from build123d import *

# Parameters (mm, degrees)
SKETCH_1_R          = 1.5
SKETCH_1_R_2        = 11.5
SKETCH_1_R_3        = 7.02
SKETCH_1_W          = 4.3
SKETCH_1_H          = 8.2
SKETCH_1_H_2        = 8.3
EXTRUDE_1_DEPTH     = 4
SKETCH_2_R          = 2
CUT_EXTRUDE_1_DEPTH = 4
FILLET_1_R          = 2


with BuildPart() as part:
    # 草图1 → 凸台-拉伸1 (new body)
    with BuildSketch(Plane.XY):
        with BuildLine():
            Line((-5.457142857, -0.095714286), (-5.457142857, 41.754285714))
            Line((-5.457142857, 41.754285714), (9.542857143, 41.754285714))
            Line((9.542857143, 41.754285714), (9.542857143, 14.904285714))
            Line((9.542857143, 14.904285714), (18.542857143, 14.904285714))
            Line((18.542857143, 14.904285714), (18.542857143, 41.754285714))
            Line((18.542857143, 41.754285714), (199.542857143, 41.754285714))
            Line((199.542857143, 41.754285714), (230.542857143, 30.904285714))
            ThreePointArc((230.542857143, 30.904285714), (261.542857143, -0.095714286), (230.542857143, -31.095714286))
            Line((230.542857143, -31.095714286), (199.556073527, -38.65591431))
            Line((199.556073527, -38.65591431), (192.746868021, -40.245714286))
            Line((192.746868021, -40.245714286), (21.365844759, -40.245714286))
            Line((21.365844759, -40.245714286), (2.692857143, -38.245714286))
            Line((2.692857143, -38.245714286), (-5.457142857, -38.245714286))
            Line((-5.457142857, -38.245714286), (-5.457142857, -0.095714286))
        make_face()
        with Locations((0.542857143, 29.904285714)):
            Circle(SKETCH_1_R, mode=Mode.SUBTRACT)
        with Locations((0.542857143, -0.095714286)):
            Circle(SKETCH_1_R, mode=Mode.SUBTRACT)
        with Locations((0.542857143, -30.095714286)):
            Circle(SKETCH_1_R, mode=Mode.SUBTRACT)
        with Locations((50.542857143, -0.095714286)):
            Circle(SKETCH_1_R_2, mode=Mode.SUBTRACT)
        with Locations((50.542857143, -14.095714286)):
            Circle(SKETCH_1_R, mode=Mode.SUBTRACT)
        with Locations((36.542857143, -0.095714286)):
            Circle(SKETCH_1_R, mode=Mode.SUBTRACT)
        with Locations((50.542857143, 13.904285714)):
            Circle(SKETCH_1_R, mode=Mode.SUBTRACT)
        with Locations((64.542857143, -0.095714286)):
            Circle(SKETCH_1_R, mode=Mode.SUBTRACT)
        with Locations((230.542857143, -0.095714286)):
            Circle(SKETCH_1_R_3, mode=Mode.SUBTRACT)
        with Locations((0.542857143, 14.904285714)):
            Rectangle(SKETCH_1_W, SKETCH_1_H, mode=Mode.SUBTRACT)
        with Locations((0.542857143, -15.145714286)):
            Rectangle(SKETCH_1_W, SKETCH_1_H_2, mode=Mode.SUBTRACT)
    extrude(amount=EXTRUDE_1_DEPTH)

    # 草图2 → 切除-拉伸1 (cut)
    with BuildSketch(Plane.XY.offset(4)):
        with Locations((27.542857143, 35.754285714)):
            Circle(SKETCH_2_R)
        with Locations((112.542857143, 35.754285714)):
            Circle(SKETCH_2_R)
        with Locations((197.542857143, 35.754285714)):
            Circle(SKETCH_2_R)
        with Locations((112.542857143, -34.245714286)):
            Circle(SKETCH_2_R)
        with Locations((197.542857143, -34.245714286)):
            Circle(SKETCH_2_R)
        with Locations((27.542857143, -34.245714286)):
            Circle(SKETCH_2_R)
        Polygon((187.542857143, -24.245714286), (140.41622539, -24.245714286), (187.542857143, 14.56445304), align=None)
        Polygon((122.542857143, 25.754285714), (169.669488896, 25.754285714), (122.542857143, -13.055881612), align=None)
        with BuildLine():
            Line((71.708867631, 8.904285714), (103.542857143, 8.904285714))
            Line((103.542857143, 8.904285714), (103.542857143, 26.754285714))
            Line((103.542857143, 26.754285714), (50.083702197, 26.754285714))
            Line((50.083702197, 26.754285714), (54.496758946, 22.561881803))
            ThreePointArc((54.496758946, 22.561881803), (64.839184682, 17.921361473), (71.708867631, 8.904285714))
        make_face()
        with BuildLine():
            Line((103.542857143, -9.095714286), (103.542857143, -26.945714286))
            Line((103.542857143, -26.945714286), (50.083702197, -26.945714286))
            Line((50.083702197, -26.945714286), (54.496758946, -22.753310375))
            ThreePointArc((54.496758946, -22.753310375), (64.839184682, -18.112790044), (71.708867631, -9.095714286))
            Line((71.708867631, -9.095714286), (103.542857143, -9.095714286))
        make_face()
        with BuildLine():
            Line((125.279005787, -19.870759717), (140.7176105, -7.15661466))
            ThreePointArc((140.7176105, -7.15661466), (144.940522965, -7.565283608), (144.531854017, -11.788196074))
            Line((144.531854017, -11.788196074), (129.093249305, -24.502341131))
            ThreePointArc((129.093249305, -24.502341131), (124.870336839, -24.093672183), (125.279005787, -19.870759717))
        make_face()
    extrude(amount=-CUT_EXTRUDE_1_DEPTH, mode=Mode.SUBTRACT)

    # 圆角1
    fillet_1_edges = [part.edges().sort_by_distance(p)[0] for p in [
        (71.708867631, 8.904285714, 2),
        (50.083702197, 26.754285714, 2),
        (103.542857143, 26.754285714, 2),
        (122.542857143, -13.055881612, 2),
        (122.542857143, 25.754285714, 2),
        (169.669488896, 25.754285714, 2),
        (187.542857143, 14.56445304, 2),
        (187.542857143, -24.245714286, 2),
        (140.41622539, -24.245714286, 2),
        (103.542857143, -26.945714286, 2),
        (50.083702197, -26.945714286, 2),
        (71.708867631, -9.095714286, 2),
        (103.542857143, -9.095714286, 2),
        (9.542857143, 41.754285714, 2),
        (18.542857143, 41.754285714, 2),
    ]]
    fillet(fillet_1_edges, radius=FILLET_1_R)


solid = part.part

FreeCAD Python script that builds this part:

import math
import FreeCAD as App
import Part
import Sketcher
from FreeCAD import Vector
Q = App.Units.Quantity


def edges_at(feature, points):
    """Names of the edges that pass closest to the given points."""
    edges = feature.Shape.Edges
    near = lambda p: min(range(len(edges)), key=lambda i: edges[i].distToShape(Part.Vertex(*p))[0])
    return sorted({f"Edge{near(p) + 1}" for p in points})


def add_polygon(sketch, points):
    """Adds a closed chain of lines whose ends are joined by coincident constraints."""
    first, n = sketch.GeometryCount, len(points)
    for a, b in zip(points, points[1:] + points[:1]):
        sketch.addGeometry(Part.LineSegment(App.Vector(*a, 0), App.Vector(*b, 0)), False)
    for i in range(n):
        sketch.addConstraint(Sketcher.Constraint("Coincident", first + i, 2, first + (i + 1) % n, 1))

doc = App.newDocument("Part")
params = doc.addObject("Spreadsheet::Sheet", "Params")
for row, (alias, value) in enumerate([
    ("sketch1_diameter", "3 mm"),
    ("sketch1_diameter2", "23 mm"),
    ("sketch1_radius", "31 mm"),
    ("sketch1_diameter3", "14.04 mm"),
    ("sketch1_width", "15 mm"),
    ("pad1_length", "4 mm"),
    ("sketch2_diameter", "4 mm"),
    ("sketch2_radius", "23 mm"),
    ("sketch2_radius2", "3 mm"),
    ("sketch2_length", "20 mm"),
    ("sketch2_height", "9 mm"),
    ("pocket1_length", "4 mm"),
    ("fillet_radius", "2 mm"),
], start=1):
    params.set(f"A{row}", alias)
    params.set(f"B{row}", "=" + value)
    params.setAlias(f"B{row}", alias)

body = doc.addObject("PartDesign::Body", "Body")

sketch1 = body.newObject("Sketcher::SketchObject", "Sketch")
sketch1.AttachmentSupport = (doc.getObject("XY_Plane"), [""])
sketch1.MapMode = "FlatFace"
sketch1.addGeometry(Part.LineSegment(Vector(9.5, 41.8, 0), Vector(-5.5, 41.8, 0)), False)
sketch1.addGeometry(Part.LineSegment(Vector(-5.5, 41.8, 0), Vector(-5.5, -38.2, 0)), False)
sketch1.addGeometry(Part.LineSegment(Vector(-5.5, -38.2, 0), Vector(2.7, -38.2, 0)), False)
sketch1.addGeometry(Part.LineSegment(Vector(2.7, -38.2, 0), Vector(21.4, -40.2, 0)), False)
sketch1.addGeometry(Part.LineSegment(Vector(21.4, -40.2, 0), Vector(192.7, -40.2, 0)), False)
sketch1.addGeometry(Part.LineSegment(Vector(192.7, -40.2, 0), Vector(199.6, -38.7, 0)), False)
sketch1.addGeometry(Part.LineSegment(Vector(199.6, -38.7, 0), Vector(230.5, -31.1, 0)), False)
sketch1.addGeometry(Part.ArcOfCircle(Part.Circle(Vector(230.5, -0.1, 0), Vector(0, 0, 1), 31), math.radians(-90), math.radians(90)), False)
sketch1.addGeometry(Part.LineSegment(Vector(230.5, 30.9, 0), Vector(199.5, 41.8, 0)), False)
sketch1.addGeometry(Part.LineSegment(Vector(199.5, 41.8, 0), Vector(18.5, 41.8, 0)), False)
sketch1.addGeometry(Part.LineSegment(Vector(18.5, 41.8, 0), Vector(18.5, 14.9, 0)), False)
sketch1.addGeometry(Part.LineSegment(Vector(18.5, 14.9, 0), Vector(9.5, 14.9, 0)), False)
sketch1.addGeometry(Part.LineSegment(Vector(9.5, 14.9, 0), Vector(9.5, 41.8, 0)), False)
sketch1.addGeometry(Part.Circle(Vector(0.5, -30.1, 0), Vector(0, 0, 1), 1.5), False)
sketch1.addGeometry(Part.Circle(Vector(50.5, -14.1, 0), Vector(0, 0, 1), 1.5), False)
add_polygon(sketch1, [(-1.6, -19.3), (-1.6, -11), (2.7, -11), (2.7, -19.3)])
sketch1.addGeometry(Part.Circle(Vector(230.5, -0.1, 0), Vector(0, 0, 1), 7), False)
sketch1.addGeometry(Part.Circle(Vector(64.5, -0.1, 0), Vector(0, 0, 1), 1.5), False)
sketch1.addGeometry(Part.Circle(Vector(50.5, -0.1, 0), Vector(0, 0, 1), 11.5), False)
sketch1.addGeometry(Part.Circle(Vector(36.5, -0.1, 0), Vector(0, 0, 1), 1.5), False)
sketch1.addGeometry(Part.Circle(Vector(0.5, -0.1, 0), Vector(0, 0, 1), 1.5), False)
sketch1.addGeometry(Part.Circle(Vector(50.5, 13.9, 0), Vector(0, 0, 1), 1.5), False)
add_polygon(sketch1, [(-1.6, 10.8), (-1.6, 19), (2.7, 19), (2.7, 10.8)])
sketch1.addGeometry(Part.Circle(Vector(0.5, 29.9, 0), Vector(0, 0, 1), 1.5), False)
sketch1.addConstraint(Sketcher.Constraint("Coincident", 0, 2, 1, 1))
sketch1.addConstraint(Sketcher.Constraint("Coincident", 1, 2, 2, 1))
sketch1.addConstraint(Sketcher.Constraint("Coincident", 2, 2, 3, 1))
sketch1.addConstraint(Sketcher.Constraint("Coincident", 3, 2, 4, 1))
sketch1.addConstraint(Sketcher.Constraint("Coincident", 4, 2, 5, 1))
sketch1.addConstraint(Sketcher.Constraint("Coincident", 5, 2, 6, 1))
sketch1.addConstraint(Sketcher.Constraint("Coincident", 6, 2, 7, 1))
sketch1.addConstraint(Sketcher.Constraint("Coincident", 7, 2, 8, 1))
sketch1.addConstraint(Sketcher.Constraint("Coincident", 8, 2, 9, 1))
sketch1.addConstraint(Sketcher.Constraint("Coincident", 9, 2, 10, 1))
sketch1.addConstraint(Sketcher.Constraint("Coincident", 10, 2, 11, 1))
sketch1.addConstraint(Sketcher.Constraint("Coincident", 11, 2, 12, 1))
sketch1.addConstraint(Sketcher.Constraint("Coincident", 12, 2, 0, 1))
sketch1.addConstraint(Sketcher.Constraint("Horizontal", 0))
sketch1.addConstraint(Sketcher.Constraint("Vertical", 1))
sketch1.addConstraint(Sketcher.Constraint("Horizontal", 2))
sketch1.addConstraint(Sketcher.Constraint("Horizontal", 4))
sketch1.addConstraint(Sketcher.Constraint("Horizontal", 9))
sketch1.addConstraint(Sketcher.Constraint("Vertical", 10))
sketch1.addConstraint(Sketcher.Constraint("Horizontal", 11))
sketch1.addConstraint(Sketcher.Constraint("Vertical", 12))
sketch1.addConstraint(Sketcher.Constraint("Vertical", 15))
sketch1.addConstraint(Sketcher.Constraint("Horizontal", 16))
sketch1.addConstraint(Sketcher.Constraint("Vertical", 17))
sketch1.addConstraint(Sketcher.Constraint("Horizontal", 18))
sketch1.addConstraint(Sketcher.Constraint("Vertical", 25))
sketch1.addConstraint(Sketcher.Constraint("Horizontal", 26))
sketch1.addConstraint(Sketcher.Constraint("Vertical", 27))
sketch1.addConstraint(Sketcher.Constraint("Horizontal", 28))
sketch1.addConstraint(Sketcher.Constraint("Coincident", 19, 3, 7, 3))
sketch1.addConstraint(Sketcher.Constraint("Equal", 13, 14))
sketch1.addConstraint(Sketcher.Constraint("Equal", 14, 20))
sketch1.addConstraint(Sketcher.Constraint("Equal", 20, 22))
sketch1.addConstraint(Sketcher.Constraint("Equal", 22, 23))
sketch1.addConstraint(Sketcher.Constraint("Equal", 23, 24))
sketch1.addConstraint(Sketcher.Constraint("Equal", 24, 29))
sketch1.addConstraint(Sketcher.Constraint("Horizontal", 19, 3, 20, 3))
sketch1.addConstraint(Sketcher.Constraint("Horizontal", 20, 3, 21, 3))
sketch1.addConstraint(Sketcher.Constraint("Horizontal", 21, 3, 22, 3))
sketch1.addConstraint(Sketcher.Constraint("Horizontal", 22, 3, 23, 3))
sketch1.addConstraint(Sketcher.Constraint("Horizontal", 0, 2, 8, 2))
sketch1.addConstraint(Sketcher.Constraint("Vertical", 14, 3, 21, 3))
sketch1.addConstraint(Sketcher.Constraint("Vertical", 13, 3, 23, 3))
sketch1.addConstraint(Sketcher.Constraint("Vertical", 21, 3, 24, 3))
sketch1.addConstraint(Sketcher.Constraint("Vertical", 23, 3, 29, 3))
sketch1.addConstraint(Sketcher.Constraint("Vertical", 19, 3, 6, 2))
sketch1.addConstraint(Sketcher.Constraint("Vertical", 6, 2, 7, 2))
sketch1.addConstraint(Sketcher.Constraint("Vertical", 2, 2, 16, 2))
sketch1.addConstraint(Sketcher.Constraint("Vertical", 18, 2, 25, 2))
sketch1.addConstraint(Sketcher.Constraint("Vertical", 17, 2, 26, 2))
sketch1.addConstraint(Sketcher.Constraint("Diameter", 13, Q("3 mm")))
sketch1.addConstraint(Sketcher.Constraint("Diameter", 21, Q("23 mm")))
sketch1.addConstraint(Sketcher.Constraint("Radius", 7, Q("31 mm")))
sketch1.addConstraint(Sketcher.Constraint("Diameter", 19, Q("14.04 mm")))
sketch1.addConstraint(Sketcher.Constraint("DistanceX", 0, 2, 0, 1, Q("15 mm")))
sketch1.addConstraint(Sketcher.Constraint("DistanceX", 9, 2, 9, 1, Q("181 mm")))
sketch1.addConstraint(Sketcher.Constraint("DistanceX", 11, 2, 11, 1, Q("9 mm")))
sketch1.addConstraint(Sketcher.Constraint("DistanceY", 1, 2, 1, 1, Q("80 mm")))
sketch1.addConstraint(Sketcher.Constraint("DistanceX", 16, 1, 16, 2, Q("4.3 mm")))
sketch1.addConstraint(Sketcher.Constraint("DistanceY", 15, 1, 15, 2, Q("8.3 mm")))
sketch1.addConstraint(Sketcher.Constraint("DistanceY", 25, 1, 25, 2, Q("8.2 mm")))
sketch1.addConstraint(Sketcher.Constraint("DistanceX", 13, 3, 7, 3, Q("230 mm")))
sketch1.addConstraint(Sketcher.Constraint("DistanceY", 13, 3, 7, 3, Q("30 mm")))
sketch1.addConstraint(Sketcher.Constraint("DistanceX", 13, 3, 14, 3, Q("50 mm")))
sketch1.addConstraint(Sketcher.Constraint("DistanceY", 13, 3, 14, 3, Q("16 mm")))
sketch1.addConstraint(Sketcher.Constraint("DistanceX", 14, 3, 20, 3, Q("14 mm")))
sketch1.addConstraint(Sketcher.Constraint("DistanceX", 22, 3, 21, 3, Q("14 mm")))
sketch1.addConstraint(Sketcher.Constraint("DistanceY", 21, 3, 24, 3, Q("14 mm")))
sketch1.addConstraint(Sketcher.Constraint("DistanceY", 23, 3, 29, 3, Q("30 mm")))
sketch1.addConstraint(Sketcher.Constraint("DistanceX", 0, 2, 29, 3, Q("6 mm")))
sketch1.addConstraint(Sketcher.Constraint("DistanceY", 3, 2, 2, 2, Q("2 mm")))
sketch1.addConstraint(Sketcher.Constraint("DistanceY", 22, 3, 10, 2, Q("15 mm")))
sketch1.addConstraint(Sketcher.Constraint("DistanceX", 2, 1, 2, 2, Q("8.15 mm")))
sketch1.addConstraint(Sketcher.Constraint("DistanceY", 10, 2, 10, 1, Q("26.85 mm")))
sketch1.addConstraint(Sketcher.Constraint("DistanceY", 15, 2, 23, 3, Q("10.9 mm")))
sketch1.addConstraint(Sketcher.Constraint("DistanceY", 25, 2, 29, 3, Q("10.9 mm")))
sketch1.addConstraint(Sketcher.Constraint("DistanceY", 4, 2, 5, 2, Q("1.5898 mm")))
sketch1.addConstraint(Sketcher.Constraint("Distance", 3, Q("18.779789 mm")))
sketch1.addConstraint(Sketcher.Constraint("DistanceX", 4, 1, 4, 2, Q("171.381023 mm")))
sketch1.addConstraint(Sketcher.Constraint("DistanceX", -1, 1, 4, 2, Q("192.746868 mm")))
sketch1.addConstraint(Sketcher.Constraint("Distance", 5, Q("6.992335 mm")))
sketch1.addConstraint(Sketcher.Constraint("DistanceY", 7, 3, -1, 1, Q("0.095714 mm")))
sketch1.setExpression("Constraints[58]", "Params.sketch1_diameter")
sketch1.setExpression("Constraints[59]", "Params.sketch1_diameter2")
sketch1.setExpression("Constraints[60]", "Params.sketch1_radius")
sketch1.setExpression("Constraints[61]", "Params.sketch1_diameter3")
sketch1.setExpression("Constraints[62]", "Params.sketch1_width")
pad1 = body.newObject("PartDesign::Pad", "Pad")
pad1.Profile = sketch1
pad1.setExpression("Length", "Params.pad1_length")

sketch2 = body.newObject("Sketcher::SketchObject", "Sketch001")
sketch2.AttachmentSupport = (doc.getObject("XY_Plane"), [""])
sketch2.MapMode = "FlatFace"
sketch2.AttachmentOffset = App.Placement(Vector(0, 0, 4), App.Rotation())
sketch2.addGeometry(Part.Circle(Vector(27.5, 35.8, 0), Vector(0, 0, 1), 2), False)
sketch2.addGeometry(Part.Circle(Vector(112.5, 35.8, 0), Vector(0, 0, 1), 2), False)
sketch2.addGeometry(Part.Circle(Vector(197.5, 35.8, 0), Vector(0, 0, 1), 2), False)
sketch2.addGeometry(Part.Circle(Vector(112.5, -34.2, 0), Vector(0, 0, 1), 2), False)
sketch2.addGeometry(Part.Circle(Vector(197.5, -34.2, 0), Vector(0, 0, 1), 2), False)
sketch2.addGeometry(Part.Circle(Vector(27.5, -34.2, 0), Vector(0, 0, 1), 2), False)
add_polygon(sketch2, [(140.4, -24.2), (187.5, -24.2), (187.5, 14.6)])
add_polygon(sketch2, [(169.7, 25.8), (122.5, 25.8), (122.5, -13.1)])
sketch2.addGeometry(Part.LineSegment(Vector(71.7, 8.9, 0), Vector(103.5, 8.9, 0)), False)
sketch2.addGeometry(Part.LineSegment(Vector(103.5, 8.9, 0), Vector(103.5, 26.8, 0)), False)
sketch2.addGeometry(Part.LineSegment(Vector(103.5, 26.8, 0), Vector(50.1, 26.8, 0)), False)
sketch2.addGeometry(Part.LineSegment(Vector(50.1, 26.8, 0), Vector(54.5, 22.6, 0)), False)
sketch2.addGeometry(Part.ArcOfCircle(Part.Circle(Vector(50.5, -0.1, 0), Vector(0, 0, 1), 23), math.radians(23), math.radians(80)), False)
sketch2.addGeometry(Part.LineSegment(Vector(103.5, -26.9, 0), Vector(103.5, -9.1, 0)), False)
sketch2.addGeometry(Part.LineSegment(Vector(103.5, -9.1, 0), Vector(71.7, -9.1, 0)), False)
sketch2.addGeometry(Part.ArcOfCircle(Part.Circle(Vector(50.5, -0.1, 0), Vector(0, 0, 1), 23), math.radians(-80), math.radians(-23)), False)
sketch2.addGeometry(Part.LineSegment(Vector(54.5, -22.8, 0), Vector(50.1, -26.9, 0)), False)
sketch2.addGeometry(Part.LineSegment(Vector(50.1, -26.9, 0), Vector(103.5, -26.9, 0)), False)
sketch2.addGeometry(Part.LineSegment(Vector(140.7, -7.2, 0), Vector(125.3, -19.9, 0)), False)
sketch2.addGeometry(Part.ArcOfCircle(Part.Circle(Vector(127.2, -22.2, 0), Vector(0, 0, 1), 3), math.radians(129), math.radians(309)), False)
sketch2.addGeometry(Part.LineSegment(Vector(129.1, -24.5, 0), Vector(144.5, -11.8, 0)), False)
sketch2.addGeometry(Part.ArcOfCircle(Part.Circle(Vector(142.6, -9.5, 0), Vector(0, 0, 1), 3), math.radians(-51), math.radians(129)), False)
sketch2.addConstraint(Sketcher.Constraint("Coincident", 12, 2, 13, 1))
sketch2.addConstraint(Sketcher.Constraint("Coincident", 13, 2, 14, 1))
sketch2.addConstraint(Sketcher.Constraint("Coincident", 14, 2, 15, 1))
sketch2.addConstraint(Sketcher.Constraint("Coincident", 15, 2, 16, 2))
sketch2.addConstraint(Sketcher.Constraint("Coincident", 16, 1, 12, 1))
sketch2.addConstraint(Sketcher.Constraint("Coincident", 17, 2, 18, 1))
sketch2.addConstraint(Sketcher.Constraint("Coincident", 18, 2, 19, 2))
sketch2.addConstraint(Sketcher.Constraint("Coincident", 19, 1, 20, 1))
sketch2.addConstraint(Sketcher.Constraint("Coincident", 20, 2, 21, 1))
sketch2.addConstraint(Sketcher.Constraint("Coincident", 21, 2, 17, 1))
sketch2.addConstraint(Sketcher.Constraint("Tangent", 22, 2, 23, 1))
sketch2.addConstraint(Sketcher.Constraint("Tangent", 23, 2, 24, 1))
sketch2.addConstraint(Sketcher.Constraint("Tangent", 24, 2, 25, 1))
sketch2.addConstraint(Sketcher.Constraint("Tangent", 25, 2, 22, 1))
sketch2.addConstraint(Sketcher.Constraint("Horizontal", 6))
sketch2.addConstraint(Sketcher.Constraint("Vertical", 7))
sketch2.addConstraint(Sketcher.Constraint("Horizontal", 9))
sketch2.addConstraint(Sketcher.Constraint("Vertical", 10))
sketch2.addConstraint(Sketcher.Constraint("Horizontal", 12))
sketch2.addConstraint(Sketcher.Constraint("Vertical", 13))
sketch2.addConstraint(Sketcher.Constraint("Horizontal", 14))
sketch2.addConstraint(Sketcher.Constraint("Vertical", 17))
sketch2.addConstraint(Sketcher.Constraint("Horizontal", 18))
sketch2.addConstraint(Sketcher.Constraint("Horizontal", 21))
sketch2.addConstraint(Sketcher.Constraint("Coincident", 19, 3, 16, 3))
sketch2.addConstraint(Sketcher.Constraint("Equal", 0, 1))
sketch2.addConstraint(Sketcher.Constraint("Equal", 1, 2))
sketch2.addConstraint(Sketcher.Constraint("Equal", 2, 3))
sketch2.addConstraint(Sketcher.Constraint("Equal", 3, 4))
sketch2.addConstraint(Sketcher.Constraint("Equal", 4, 5))
sketch2.addConstraint(Sketcher.Constraint("Equal", 16, 19))
sketch2.addConstraint(Sketcher.Constraint("Equal", 23, 25))
sketch2.addConstraint(Sketcher.Constraint("Parallel", 8, 11))
sketch2.addConstraint(Sketcher.Constraint("Parallel", 11, 22))
sketch2.addConstraint(Sketcher.Constraint("Horizontal", 0, 3, 1, 3))
sketch2.addConstraint(Sketcher.Constraint("Horizontal", 1, 3, 2, 3))
sketch2.addConstraint(Sketcher.Constraint("Horizontal", 3, 3, 4, 3))
sketch2.addConstraint(Sketcher.Constraint("Horizontal", 4, 3, 5, 3))
sketch2.addConstraint(Sketcher.Constraint("Vertical", 1, 3, 3, 3))
sketch2.addConstraint(Sketcher.Constraint("Vertical", 2, 3, 4, 3))
sketch2.addConstraint(Sketcher.Constraint("Vertical", 0, 3, 5, 3))
sketch2.addConstraint(Sketcher.Constraint("Vertical", 13, 2, 17, 2))
sketch2.addConstraint(Sketcher.Constraint("Vertical", 16, 1, 18, 2))
sketch2.addConstraint(Sketcher.Constraint("Vertical", 15, 2, 19, 1))
sketch2.addConstraint(Sketcher.Constraint("Vertical", 14, 2, 20, 2))
sketch2.addConstraint(Sketcher.Constraint("Equal", 6, 9))
sketch2.addConstraint(Sketcher.Constraint("Equal", 13, 17))
sketch2.addConstraint(Sketcher.Constraint("Diameter", 0, Q("4 mm")))
sketch2.addConstraint(Sketcher.Constraint("Radius", 16, Q("23 mm")))
sketch2.addConstraint(Sketcher.Constraint("Radius", 23, Q("3 mm")))
sketch2.addConstraint(Sketcher.Constraint("Distance", 22, Q("20 mm")))
sketch2.addConstraint(Sketcher.Constraint("DistanceX", 0, 3, 1, 3, Q("85 mm")))
sketch2.addConstraint(Sketcher.Constraint("DistanceX", 1, 3, 2, 3, Q("85 mm")))
sketch2.addConstraint(Sketcher.Constraint("DistanceY", 3, 3, 1, 3, Q("70 mm")))
sketch2.addConstraint(Sketcher.Constraint("DistanceX", 5, 3, 16, 3, Q("23 mm")))
sketch2.addConstraint(Sketcher.Constraint("DistanceX", 6, 2, 4, 3, Q("10 mm")))
sketch2.addConstraint(Sketcher.Constraint("DistanceY", 4, 3, 6, 2, Q("10 mm")))
sketch2.addConstraint(Sketcher.Constraint("DistanceX", 1, 3, 9, 2, Q("10 mm")))
sketch2.addConstraint(Sketcher.Constraint("DistanceY", 9, 2, 1, 3, Q("10 mm")))
sketch2.addConstraint(Sketcher.Constraint("DistanceX", 12, 2, 9, 2, Q("19 mm")))
sketch2.addConstraint(Sketcher.Constraint("DistanceY", 13, 2, 1, 3, Q("9 mm")))
sketch2.addConstraint(Sketcher.Constraint("DistanceY", 16, 3, 16, 1, Q("9 mm")))
sketch2.addConstraint(Sketcher.Constraint("DistanceY", 13, 1, 13, 2, Q("17.85 mm")))
sketch2.addConstraint(Sketcher.Constraint("DistanceX", 6, 1, 6, 2, Q("47.126632 mm")))
sketch2.addConstraint(Sketcher.Constraint("DistanceX", 16, 3, 15, 2, Q("3.953902 mm")))
sketch2.addConstraint(Sketcher.Constraint("DistanceY", 8, 2, 25, 2, Q("17.0891 mm")))
sketch2.addConstraint(Sketcher.Constraint("Distance", 15, Q("6.08698 mm")))
sketch2.addConstraint(Sketcher.Constraint("DistanceY", 7, 1, 7, 2, Q("38.810167 mm")))
sketch2.addConstraint(Sketcher.Constraint("DistanceY", 23, 3, -1, 1, Q("22.18655 mm")))
sketch2.addConstraint(Sketcher.Constraint("DistanceX", -1, 1, 11, 2, Q("169.669489 mm")))
sketch2.addConstraint(Sketcher.Constraint("DistanceX", -1, 1, 23, 2, Q("129.093249 mm")))
sketch2.setExpression("Constraints[53]", "Params.sketch2_diameter")
sketch2.setExpression("Constraints[54]", "Params.sketch2_radius")
sketch2.setExpression("Constraints[55]", "Params.sketch2_radius2")
sketch2.setExpression("Constraints[56]", "Params.sketch2_length")
sketch2.setExpression("Constraints[67]", "Params.sketch2_height")
pocket1 = body.newObject("PartDesign::Pocket", "Pocket")
pocket1.Profile = sketch2
pocket1.setExpression("Length", "Params.pocket1_length")
doc.recompute()

fillet = body.newObject("PartDesign::Fillet", "Fillet")
fillet.Base = (pocket1, edges_at(pocket1, [
    (71.709, 8.904, 2),
    (50.084, 26.754, 2),
    (103.543, 26.754, 2),
    (122.543, -13.056, 2),
    (122.543, 25.754, 2),
    (169.669, 25.754, 2),
    (187.543, 14.564, 2),
    (187.543, -24.246, 2),
    (140.416, -24.246, 2),
    (103.543, -26.946, 2),
    (50.084, -26.946, 2),
    (71.709, -9.096, 2),
    (103.543, -9.096, 2),
    (9.543, 41.754, 2),
    (18.543, 41.754, 2),
]))
fillet.setExpression("Radius", "Params.fillet_radius")

doc.recompute()
